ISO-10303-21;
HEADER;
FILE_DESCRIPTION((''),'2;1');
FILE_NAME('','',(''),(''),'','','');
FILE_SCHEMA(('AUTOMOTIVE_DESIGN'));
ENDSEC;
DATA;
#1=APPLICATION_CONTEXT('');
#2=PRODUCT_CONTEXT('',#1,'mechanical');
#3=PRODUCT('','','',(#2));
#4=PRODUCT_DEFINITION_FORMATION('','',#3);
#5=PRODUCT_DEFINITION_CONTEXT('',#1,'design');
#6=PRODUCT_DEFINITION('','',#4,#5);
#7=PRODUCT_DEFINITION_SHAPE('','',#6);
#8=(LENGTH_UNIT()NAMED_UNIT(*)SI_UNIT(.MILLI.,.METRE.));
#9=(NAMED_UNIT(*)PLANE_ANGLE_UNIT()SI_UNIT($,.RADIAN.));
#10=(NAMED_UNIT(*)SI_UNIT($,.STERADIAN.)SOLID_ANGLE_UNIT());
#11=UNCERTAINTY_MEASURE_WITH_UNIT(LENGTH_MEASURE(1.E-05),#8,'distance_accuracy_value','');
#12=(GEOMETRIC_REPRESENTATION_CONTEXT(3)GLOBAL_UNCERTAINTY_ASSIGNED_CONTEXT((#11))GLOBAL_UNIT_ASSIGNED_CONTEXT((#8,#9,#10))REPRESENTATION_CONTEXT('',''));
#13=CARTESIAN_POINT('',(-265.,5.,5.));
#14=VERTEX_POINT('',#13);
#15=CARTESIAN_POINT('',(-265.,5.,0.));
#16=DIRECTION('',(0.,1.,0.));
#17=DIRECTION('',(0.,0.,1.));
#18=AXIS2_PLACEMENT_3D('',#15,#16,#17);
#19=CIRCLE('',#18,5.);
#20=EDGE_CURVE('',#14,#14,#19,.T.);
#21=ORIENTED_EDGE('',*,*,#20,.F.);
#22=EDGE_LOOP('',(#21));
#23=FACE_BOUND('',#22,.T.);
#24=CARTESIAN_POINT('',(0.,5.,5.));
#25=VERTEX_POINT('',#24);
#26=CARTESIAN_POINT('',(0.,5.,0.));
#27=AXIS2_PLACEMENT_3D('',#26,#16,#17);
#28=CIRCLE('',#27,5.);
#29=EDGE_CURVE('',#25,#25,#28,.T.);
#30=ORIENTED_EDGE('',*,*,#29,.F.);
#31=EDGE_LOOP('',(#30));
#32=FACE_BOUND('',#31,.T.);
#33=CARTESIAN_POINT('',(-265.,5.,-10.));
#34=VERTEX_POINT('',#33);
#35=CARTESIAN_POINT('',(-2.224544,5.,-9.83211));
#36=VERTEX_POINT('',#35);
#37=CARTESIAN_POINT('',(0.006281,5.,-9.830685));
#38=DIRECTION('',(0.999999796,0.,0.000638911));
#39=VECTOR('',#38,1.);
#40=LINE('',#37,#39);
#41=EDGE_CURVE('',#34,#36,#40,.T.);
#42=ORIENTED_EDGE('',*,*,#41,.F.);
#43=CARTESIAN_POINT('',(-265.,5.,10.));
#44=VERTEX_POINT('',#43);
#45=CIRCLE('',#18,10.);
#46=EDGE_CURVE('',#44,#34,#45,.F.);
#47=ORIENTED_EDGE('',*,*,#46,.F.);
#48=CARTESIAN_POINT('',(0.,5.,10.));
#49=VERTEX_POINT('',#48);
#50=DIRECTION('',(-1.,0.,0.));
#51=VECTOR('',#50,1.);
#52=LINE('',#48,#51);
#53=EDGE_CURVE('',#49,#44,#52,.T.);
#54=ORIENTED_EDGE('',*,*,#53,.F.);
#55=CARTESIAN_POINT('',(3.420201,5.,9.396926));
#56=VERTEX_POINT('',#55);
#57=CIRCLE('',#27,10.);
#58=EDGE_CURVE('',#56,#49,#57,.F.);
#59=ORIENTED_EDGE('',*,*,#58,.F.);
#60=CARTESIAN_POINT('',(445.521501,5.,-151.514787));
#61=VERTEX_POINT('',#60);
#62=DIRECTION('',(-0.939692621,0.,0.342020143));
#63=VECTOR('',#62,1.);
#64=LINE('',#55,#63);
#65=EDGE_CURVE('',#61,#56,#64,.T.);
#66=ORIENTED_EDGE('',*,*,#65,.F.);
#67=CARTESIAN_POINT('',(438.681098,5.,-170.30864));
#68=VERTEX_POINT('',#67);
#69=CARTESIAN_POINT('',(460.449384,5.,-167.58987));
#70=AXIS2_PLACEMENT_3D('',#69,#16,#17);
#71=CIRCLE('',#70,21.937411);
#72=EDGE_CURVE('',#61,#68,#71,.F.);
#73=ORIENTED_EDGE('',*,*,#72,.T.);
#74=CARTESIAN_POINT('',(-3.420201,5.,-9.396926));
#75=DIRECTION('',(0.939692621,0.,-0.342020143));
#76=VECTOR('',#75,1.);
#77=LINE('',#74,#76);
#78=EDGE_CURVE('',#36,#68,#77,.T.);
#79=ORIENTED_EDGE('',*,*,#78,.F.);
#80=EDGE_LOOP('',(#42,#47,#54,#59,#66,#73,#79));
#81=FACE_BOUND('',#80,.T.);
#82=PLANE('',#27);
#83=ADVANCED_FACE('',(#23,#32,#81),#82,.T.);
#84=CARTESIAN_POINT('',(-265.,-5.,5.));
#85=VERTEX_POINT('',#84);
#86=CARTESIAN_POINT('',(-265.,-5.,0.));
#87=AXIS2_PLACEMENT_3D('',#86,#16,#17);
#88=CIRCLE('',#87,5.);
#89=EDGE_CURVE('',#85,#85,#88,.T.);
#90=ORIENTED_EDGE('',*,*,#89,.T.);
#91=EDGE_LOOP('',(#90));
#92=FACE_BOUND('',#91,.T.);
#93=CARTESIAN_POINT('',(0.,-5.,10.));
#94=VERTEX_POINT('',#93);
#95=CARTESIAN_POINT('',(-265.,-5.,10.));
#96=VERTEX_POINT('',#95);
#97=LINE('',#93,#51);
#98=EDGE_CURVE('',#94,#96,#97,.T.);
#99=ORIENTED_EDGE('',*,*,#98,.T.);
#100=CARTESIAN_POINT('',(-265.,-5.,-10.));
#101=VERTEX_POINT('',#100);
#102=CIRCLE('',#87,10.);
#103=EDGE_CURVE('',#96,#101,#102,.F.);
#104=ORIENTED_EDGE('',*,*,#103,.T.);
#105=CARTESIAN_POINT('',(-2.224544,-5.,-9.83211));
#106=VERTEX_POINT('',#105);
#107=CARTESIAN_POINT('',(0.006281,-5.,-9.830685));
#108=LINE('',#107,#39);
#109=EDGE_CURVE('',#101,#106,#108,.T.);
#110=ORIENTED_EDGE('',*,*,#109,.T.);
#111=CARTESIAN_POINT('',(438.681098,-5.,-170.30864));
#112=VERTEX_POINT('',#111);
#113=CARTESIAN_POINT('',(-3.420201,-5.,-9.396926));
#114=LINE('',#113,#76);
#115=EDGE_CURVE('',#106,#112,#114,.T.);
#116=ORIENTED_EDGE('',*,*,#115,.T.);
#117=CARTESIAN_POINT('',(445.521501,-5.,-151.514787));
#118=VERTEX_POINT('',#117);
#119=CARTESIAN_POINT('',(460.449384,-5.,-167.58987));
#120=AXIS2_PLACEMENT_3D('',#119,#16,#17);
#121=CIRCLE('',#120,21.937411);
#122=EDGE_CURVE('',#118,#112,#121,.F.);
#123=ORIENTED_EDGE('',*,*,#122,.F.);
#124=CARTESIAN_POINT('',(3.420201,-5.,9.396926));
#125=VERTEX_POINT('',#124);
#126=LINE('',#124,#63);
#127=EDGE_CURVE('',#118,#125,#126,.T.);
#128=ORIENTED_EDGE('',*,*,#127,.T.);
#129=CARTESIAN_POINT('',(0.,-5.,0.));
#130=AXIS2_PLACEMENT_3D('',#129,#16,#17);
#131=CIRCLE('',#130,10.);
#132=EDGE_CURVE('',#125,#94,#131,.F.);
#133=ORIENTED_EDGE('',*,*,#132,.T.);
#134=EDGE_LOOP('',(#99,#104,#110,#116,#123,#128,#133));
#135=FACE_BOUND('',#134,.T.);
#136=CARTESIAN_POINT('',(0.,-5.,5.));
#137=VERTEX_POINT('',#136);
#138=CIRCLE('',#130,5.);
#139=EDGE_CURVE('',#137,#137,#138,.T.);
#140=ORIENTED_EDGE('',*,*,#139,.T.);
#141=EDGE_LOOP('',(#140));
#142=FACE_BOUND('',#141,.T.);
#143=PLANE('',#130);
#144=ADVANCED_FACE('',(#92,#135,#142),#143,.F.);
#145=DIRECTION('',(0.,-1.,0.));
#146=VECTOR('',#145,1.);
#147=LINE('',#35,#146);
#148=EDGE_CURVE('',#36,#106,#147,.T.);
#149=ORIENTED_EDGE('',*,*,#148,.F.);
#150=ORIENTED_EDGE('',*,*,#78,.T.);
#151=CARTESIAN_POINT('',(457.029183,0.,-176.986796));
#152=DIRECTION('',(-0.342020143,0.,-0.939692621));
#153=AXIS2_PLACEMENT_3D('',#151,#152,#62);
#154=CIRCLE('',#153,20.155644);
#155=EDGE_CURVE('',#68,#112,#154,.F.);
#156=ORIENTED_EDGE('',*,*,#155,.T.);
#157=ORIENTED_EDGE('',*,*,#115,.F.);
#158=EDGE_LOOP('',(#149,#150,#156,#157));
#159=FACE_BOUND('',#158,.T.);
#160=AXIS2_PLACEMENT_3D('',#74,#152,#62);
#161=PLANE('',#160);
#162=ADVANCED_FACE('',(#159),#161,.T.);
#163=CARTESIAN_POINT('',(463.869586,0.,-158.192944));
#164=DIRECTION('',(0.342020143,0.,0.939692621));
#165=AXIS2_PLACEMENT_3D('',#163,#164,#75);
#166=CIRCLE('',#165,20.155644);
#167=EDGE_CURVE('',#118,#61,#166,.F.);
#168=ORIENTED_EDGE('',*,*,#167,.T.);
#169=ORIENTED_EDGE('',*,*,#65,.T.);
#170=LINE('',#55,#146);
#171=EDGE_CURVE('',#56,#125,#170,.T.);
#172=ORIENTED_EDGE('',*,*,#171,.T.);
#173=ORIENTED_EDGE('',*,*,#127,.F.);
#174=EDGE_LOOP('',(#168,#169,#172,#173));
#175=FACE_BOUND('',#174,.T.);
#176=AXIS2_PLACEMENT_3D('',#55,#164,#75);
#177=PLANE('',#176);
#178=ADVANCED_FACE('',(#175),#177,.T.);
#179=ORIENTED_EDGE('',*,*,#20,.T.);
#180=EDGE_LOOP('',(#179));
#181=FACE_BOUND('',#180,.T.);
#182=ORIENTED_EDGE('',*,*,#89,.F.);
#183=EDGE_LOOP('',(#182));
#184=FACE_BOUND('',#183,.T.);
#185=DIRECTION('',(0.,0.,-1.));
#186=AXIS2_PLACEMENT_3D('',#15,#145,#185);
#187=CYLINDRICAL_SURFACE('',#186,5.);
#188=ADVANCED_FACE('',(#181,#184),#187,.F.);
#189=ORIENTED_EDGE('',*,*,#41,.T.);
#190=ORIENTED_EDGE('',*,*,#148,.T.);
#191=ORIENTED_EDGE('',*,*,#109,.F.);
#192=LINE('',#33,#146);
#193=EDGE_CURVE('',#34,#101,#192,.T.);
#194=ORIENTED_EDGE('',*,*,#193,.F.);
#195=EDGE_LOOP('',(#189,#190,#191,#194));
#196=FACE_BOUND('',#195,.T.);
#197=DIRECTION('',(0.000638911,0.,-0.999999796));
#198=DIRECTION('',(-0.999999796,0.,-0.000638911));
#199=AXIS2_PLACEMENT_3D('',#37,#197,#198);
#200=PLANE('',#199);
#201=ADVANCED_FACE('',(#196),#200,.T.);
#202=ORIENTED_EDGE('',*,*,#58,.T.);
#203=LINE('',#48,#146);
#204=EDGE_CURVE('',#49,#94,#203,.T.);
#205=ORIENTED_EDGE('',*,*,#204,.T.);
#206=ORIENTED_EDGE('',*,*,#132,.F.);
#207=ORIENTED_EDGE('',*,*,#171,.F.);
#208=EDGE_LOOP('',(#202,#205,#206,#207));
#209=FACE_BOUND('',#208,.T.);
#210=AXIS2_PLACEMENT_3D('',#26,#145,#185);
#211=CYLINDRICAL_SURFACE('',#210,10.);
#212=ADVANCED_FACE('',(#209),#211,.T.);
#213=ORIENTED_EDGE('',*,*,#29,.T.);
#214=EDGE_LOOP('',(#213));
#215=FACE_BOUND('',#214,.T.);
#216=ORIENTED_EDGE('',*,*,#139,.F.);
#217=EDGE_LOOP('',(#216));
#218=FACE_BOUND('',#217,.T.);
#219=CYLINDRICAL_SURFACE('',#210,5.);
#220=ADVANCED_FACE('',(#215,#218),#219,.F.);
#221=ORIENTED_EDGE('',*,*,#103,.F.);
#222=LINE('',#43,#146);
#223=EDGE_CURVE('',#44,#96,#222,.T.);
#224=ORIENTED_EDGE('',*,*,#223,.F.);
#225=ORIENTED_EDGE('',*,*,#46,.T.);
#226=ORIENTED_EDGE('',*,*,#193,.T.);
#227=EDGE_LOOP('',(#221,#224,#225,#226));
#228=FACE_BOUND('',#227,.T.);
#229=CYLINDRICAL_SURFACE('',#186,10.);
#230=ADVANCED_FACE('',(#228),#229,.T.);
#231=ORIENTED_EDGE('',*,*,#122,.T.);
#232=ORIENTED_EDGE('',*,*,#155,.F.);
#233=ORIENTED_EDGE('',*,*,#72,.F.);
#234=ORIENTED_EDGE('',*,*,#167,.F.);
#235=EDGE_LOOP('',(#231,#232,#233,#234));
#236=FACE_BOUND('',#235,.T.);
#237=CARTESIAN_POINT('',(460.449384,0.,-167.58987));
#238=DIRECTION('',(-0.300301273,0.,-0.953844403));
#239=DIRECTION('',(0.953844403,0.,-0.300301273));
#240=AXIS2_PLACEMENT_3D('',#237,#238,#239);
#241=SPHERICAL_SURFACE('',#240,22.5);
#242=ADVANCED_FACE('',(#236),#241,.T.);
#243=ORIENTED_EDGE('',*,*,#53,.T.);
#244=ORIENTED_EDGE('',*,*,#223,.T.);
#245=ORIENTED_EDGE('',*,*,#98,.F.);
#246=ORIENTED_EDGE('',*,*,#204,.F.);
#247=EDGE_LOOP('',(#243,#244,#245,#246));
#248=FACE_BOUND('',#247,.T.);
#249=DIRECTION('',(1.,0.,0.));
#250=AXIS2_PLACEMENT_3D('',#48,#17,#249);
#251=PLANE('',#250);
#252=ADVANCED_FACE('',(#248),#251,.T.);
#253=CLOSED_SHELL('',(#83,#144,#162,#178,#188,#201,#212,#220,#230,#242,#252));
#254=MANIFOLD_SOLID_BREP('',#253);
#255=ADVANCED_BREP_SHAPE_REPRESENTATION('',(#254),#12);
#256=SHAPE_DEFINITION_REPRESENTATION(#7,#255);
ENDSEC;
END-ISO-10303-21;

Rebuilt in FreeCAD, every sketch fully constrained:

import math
import FreeCAD as App
import Part
import Sketcher
from FreeCAD import Vector
Q = App.Units.Quantity

doc = App.newDocument("Part")
body = doc.addObject("PartDesign::Body", "Body")

sketch1 = body.newObject("Sketcher::SketchObject", "Sketch")
sketch1.AttachmentSupport = (doc.getObject("XZ_Plane"), [""])
sketch1.MapMode = "FlatFace"
sketch1.addGeometry([
    Part.ArcOfCircle(Part.Circle(Vector(0, 0, 0), Vector(0, 0, 1), 10), math.radians(70), math.radians(90)),
    Part.LineSegment(Vector(3.4, 9.4, 0), Vector(463.9, -158.2, 0)),
    Part.ArcOfCircle(Part.Circle(Vector(460.4, -167.6, 0), Vector(0, 0, 1), 10), math.radians(-110), math.radians(70)),
    Part.LineSegment(Vector(457, -177, 0), Vector(-2.2, -9.8, 0)),
    Part.LineSegment(Vector(-2.2, -9.8, 0), Vector(-265, -10, 0)),
    Part.ArcOfCircle(Part.Circle(Vector(-265, 0, 0), Vector(0, 0, 1), 10), math.radians(90), math.radians(270)),
    Part.LineSegment(Vector(-265, 10, 0), Vector(0, 10, 0)),
    Part.Circle(Vector(0, 0, 0), Vector(0, 0, 1), 5),
    Part.Circle(Vector(-265, 0, 0), Vector(0, 0, 1), 5),
    Part.Circle(Vector(460.4, -167.6, 0), Vector(0, 0, 1), 5),
], False)
sketch1.addConstraint([
    Sketcher.Constraint("Tangent", 0, 1, 1, 1),
    Sketcher.Constraint("Tangent", 1, 2, 2, 2),
    Sketcher.Constraint("Tangent", 2, 1, 3, 1),
    Sketcher.Constraint("Coincident", 3, 2, 4, 1),
    Sketcher.Constraint("Coincident", 4, 2, 5, 2),
    Sketcher.Constraint("Tangent", 5, 1, 6, 1),
    Sketcher.Constraint("Tangent", 6, 2, 0, 2),
    Sketcher.Constraint("Horizontal", 6),
    Sketcher.Constraint("Coincident", 0, 3, -1, 1),
    Sketcher.Constraint("Coincident", 7, 3, -1, 1),
    Sketcher.Constraint("Coincident", 8, 3, 5, 3),
    Sketcher.Constraint("Coincident", 9, 3, 2, 3),
    Sketcher.Constraint("Equal", 0, 2),
    Sketcher.Constraint("Equal", 2, 5),
    Sketcher.Constraint("Equal", 7, 8),
    Sketcher.Constraint("Equal", 8, 9),
    Sketcher.Constraint("Parallel", 1, 3),
    Sketcher.Constraint("Vertical", 8, 3, 4, 2),
    Sketcher.Constraint("Diameter", 7, 10.0),
    Sketcher.Constraint("Radius", 0, 10.0),
    Sketcher.Constraint("DistanceX", 6, 1, 6, 2, 265.0),
    Sketcher.Constraint("Angle", 1, Q("-20 deg")),
    Sketcher.Constraint("Distance", 1, 490.0),
    Sketcher.Constraint("Distance", 3, 488.727608),
])
pad1 = body.newObject("PartDesign::Pad", "Pad")
pad1.Profile = sketch1
pad1.Length = 10
pad1.Midplane = True

sketch2 = body.newObject("Sketcher::SketchObject", "Sketch001")
sketch2.AttachmentSupport = (doc.getObject("XZ_Plane"), [""])
sketch2.MapMode = "FlatFace"
sketch2.addGeometry(Part.Circle(Vector(460, -168, 0), Vector(0, 0, 1), 5), False)
sketch2.addConstraint([
    Sketcher.Constraint("Diameter", 0, 10.0),
    Sketcher.Constraint("DistanceY", 0, 3, -1, 1, 167.58987),
    Sketcher.Constraint("DistanceX", -1, 1, 0, 3, 460.449384),
])
pad2 = body.newObject("PartDesign::Pad", "Pad001")
pad2.Profile = sketch2
pad2.Length = 10
pad2.Midplane = True

sketch3 = body.newObject("Sketcher::SketchObject", "Sketch002")
sketch3.AttachmentSupport = (doc.getObject("XZ_Plane"), [""])
sketch3.MapMode = "FlatFace"
sketch3.addGeometry([
    Part.LineSegment(Vector(454, -189, 0), Vector(467, -146, 0)),
    Part.ArcOfCircle(Part.Circle(Vector(460, -168, 0), Vector(0, 0, 1), 22), math.radians(-107), math.radians(73)),
], False)
sketch3.addGeometry(Part.LineSegment(Vector(454, -189, 0), Vector(467, -146, 0)), True)
sketch3.addConstraint([
    Sketcher.Constraint("Coincident", 0, 1, 1, 1),
    Sketcher.Constraint("Coincident", 1, 2, 0, 2),
    Sketcher.Constraint("Coincident", 2, 1, 0, 1),
    Sketcher.Constraint("Coincident", 2, 2, 1, 2),
    Sketcher.Constraint("Radius", 1, 22.5),
    Sketcher.Constraint("DistanceY", 0, 1, 1, 2, 42.922998),
    Sketcher.Constraint("DistanceY", 0, 1, 1, 3, 21.461499),
    Sketcher.Constraint("DistanceY", 1, 3, -1, 1, 167.58987),
    Sketcher.Constraint("DistanceX", -1, 1, 1, 3, 460.449384),
])
revolution = body.newObject("PartDesign::Revolution", "Revolution")
revolution.Profile = sketch3
revolution.ReferenceAxis = (sketch3, ["Axis0"])
revolution.Angle = 360

doc.recompute()
